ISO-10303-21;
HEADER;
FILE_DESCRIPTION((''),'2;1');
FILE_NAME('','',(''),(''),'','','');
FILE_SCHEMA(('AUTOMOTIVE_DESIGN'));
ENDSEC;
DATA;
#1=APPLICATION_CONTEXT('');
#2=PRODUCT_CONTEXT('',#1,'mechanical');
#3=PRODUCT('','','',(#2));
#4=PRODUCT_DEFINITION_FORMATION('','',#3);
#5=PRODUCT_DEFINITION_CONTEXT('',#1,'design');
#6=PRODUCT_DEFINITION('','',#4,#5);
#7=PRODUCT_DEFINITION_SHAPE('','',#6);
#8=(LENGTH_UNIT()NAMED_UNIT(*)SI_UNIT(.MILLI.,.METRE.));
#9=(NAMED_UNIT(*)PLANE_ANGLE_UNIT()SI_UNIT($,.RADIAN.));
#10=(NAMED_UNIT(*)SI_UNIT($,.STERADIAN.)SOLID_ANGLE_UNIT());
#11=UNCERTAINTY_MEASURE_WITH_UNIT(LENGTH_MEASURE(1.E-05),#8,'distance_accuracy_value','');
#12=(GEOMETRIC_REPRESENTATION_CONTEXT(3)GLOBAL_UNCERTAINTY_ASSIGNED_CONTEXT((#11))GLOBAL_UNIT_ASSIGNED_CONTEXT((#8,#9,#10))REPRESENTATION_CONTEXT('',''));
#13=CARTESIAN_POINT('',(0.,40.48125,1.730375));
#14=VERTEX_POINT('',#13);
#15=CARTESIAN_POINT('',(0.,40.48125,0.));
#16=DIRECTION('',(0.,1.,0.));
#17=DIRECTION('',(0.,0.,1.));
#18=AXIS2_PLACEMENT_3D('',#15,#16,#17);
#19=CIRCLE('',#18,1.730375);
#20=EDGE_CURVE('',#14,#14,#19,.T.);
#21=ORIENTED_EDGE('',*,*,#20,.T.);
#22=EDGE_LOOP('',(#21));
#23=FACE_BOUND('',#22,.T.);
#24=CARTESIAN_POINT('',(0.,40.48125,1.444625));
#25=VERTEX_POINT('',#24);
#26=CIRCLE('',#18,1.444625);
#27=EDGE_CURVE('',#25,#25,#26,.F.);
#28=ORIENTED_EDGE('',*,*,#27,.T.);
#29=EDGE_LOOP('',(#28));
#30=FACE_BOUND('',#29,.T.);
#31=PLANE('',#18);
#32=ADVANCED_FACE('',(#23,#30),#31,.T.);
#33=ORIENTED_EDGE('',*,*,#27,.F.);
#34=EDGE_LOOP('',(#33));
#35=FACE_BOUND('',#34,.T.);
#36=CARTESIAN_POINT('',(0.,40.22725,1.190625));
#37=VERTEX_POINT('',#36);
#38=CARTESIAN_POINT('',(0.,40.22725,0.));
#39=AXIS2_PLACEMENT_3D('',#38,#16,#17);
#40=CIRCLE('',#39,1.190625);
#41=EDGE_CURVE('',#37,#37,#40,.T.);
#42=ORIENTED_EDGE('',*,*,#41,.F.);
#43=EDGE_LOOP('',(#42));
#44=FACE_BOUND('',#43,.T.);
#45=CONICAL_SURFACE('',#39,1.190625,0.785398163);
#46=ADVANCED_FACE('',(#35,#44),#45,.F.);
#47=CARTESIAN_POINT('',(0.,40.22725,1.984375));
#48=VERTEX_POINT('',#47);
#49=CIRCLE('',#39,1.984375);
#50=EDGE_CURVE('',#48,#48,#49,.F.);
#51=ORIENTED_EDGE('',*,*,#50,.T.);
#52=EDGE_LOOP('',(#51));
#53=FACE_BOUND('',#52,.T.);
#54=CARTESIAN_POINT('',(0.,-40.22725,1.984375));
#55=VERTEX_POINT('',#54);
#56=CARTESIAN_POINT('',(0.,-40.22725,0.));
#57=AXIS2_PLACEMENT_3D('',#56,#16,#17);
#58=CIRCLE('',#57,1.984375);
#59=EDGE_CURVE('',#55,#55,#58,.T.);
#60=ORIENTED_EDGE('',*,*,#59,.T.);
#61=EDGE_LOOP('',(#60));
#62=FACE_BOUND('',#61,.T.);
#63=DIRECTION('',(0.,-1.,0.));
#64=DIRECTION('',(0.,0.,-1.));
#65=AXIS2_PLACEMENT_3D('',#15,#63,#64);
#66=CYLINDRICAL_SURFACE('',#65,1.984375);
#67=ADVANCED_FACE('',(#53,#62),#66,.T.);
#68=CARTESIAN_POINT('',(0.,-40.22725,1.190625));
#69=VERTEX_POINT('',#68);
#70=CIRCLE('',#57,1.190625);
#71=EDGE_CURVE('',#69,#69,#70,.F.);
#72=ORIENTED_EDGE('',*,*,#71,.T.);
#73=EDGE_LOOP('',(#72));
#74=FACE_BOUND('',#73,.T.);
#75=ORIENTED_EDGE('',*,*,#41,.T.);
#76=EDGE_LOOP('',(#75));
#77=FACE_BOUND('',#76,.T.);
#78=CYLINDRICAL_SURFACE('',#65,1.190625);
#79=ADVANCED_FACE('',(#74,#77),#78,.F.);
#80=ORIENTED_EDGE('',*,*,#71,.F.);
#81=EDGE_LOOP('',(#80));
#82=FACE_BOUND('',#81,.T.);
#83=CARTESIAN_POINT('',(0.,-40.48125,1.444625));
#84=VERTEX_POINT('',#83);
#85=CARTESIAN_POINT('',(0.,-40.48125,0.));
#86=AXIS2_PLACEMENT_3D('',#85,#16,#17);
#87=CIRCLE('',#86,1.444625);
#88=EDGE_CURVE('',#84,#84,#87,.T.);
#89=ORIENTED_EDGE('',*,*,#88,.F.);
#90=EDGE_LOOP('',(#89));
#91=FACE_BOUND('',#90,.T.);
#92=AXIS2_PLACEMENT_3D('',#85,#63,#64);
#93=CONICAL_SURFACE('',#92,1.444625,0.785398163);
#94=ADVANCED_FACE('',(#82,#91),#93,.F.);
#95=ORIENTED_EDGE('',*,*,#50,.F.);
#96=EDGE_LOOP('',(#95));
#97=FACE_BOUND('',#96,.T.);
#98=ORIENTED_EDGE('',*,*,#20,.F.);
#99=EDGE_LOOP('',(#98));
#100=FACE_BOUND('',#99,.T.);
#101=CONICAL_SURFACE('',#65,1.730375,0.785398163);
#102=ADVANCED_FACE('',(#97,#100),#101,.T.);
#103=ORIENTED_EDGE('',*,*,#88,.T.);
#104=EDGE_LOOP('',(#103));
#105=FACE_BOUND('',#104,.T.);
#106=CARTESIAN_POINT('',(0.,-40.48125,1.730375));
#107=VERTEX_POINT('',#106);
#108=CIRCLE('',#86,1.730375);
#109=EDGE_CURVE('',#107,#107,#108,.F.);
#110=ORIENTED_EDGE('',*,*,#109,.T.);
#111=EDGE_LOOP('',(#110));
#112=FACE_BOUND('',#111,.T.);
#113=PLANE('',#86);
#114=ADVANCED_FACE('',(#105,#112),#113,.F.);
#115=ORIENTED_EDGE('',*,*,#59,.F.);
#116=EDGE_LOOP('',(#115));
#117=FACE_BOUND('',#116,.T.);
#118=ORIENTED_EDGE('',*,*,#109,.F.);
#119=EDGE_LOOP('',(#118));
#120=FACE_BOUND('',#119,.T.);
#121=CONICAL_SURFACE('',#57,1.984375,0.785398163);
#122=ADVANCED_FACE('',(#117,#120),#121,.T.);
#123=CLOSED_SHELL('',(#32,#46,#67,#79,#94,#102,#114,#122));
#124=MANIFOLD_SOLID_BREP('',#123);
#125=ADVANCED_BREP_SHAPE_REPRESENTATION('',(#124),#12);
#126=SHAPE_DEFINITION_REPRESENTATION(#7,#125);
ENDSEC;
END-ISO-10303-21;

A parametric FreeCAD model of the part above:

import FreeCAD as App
import Part
import Sketcher
from FreeCAD import Vector
Q = App.Units.Quantity


def edges_at(feature, points):
    """Names of the edges that pass closest to the given points."""
    edges = feature.Shape.Edges
    near = lambda p: min(range(len(edges)), key=lambda i: edges[i].distToShape(Part.Vertex(*p))[0])
    return sorted({f"Edge{near(p) + 1}" for p in points})

doc = App.newDocument("Part")
body = doc.addObject("PartDesign::Body", "Body")

# Sketch on XZ plane
sketch1 = body.newObject("Sketcher::SketchObject", "Sketch")
sketch1.AttachmentSupport = (doc.getObject("XZ_Plane"), [""])
sketch1.MapMode = "FlatFace"
sketch1.addGeometry(Part.Circle(Vector(0, 0, 0), Vector(0, 0, 1), 2), False)
sketch1.addGeometry(Part.Circle(Vector(0, 0, 0), Vector(0, 0, 1), 1.2), False)
sketch1.addConstraint(Sketcher.Constraint("Coincident", 0, 3, -1, 1))
sketch1.addConstraint(Sketcher.Constraint("Coincident", 1, 3, -1, 1))
sketch1.addConstraint(Sketcher.Constraint("Diameter", 0, Q("0.15625 in")))
sketch1.addConstraint(Sketcher.Constraint("Diameter", 1, Q("0.09375 in")))
pad1 = body.newObject("PartDesign::Pad", "Pad")
pad1.Profile = sketch1
pad1.Length = Q("3.1875 in")
pad1.Midplane = True
doc.recompute()

chamfer = body.newObject("PartDesign::Chamfer", "Chamfer")
chamfer.Base = (pad1, edges_at(pad1, [
    (-1.984, -40.481, 0),
    (-1.984, 40.481, 0),
    (-1.191, -40.481, 0),
    (-1.191, 40.481, 0),
]))
chamfer.Size = Q("0.01 in")

doc.recompute()
